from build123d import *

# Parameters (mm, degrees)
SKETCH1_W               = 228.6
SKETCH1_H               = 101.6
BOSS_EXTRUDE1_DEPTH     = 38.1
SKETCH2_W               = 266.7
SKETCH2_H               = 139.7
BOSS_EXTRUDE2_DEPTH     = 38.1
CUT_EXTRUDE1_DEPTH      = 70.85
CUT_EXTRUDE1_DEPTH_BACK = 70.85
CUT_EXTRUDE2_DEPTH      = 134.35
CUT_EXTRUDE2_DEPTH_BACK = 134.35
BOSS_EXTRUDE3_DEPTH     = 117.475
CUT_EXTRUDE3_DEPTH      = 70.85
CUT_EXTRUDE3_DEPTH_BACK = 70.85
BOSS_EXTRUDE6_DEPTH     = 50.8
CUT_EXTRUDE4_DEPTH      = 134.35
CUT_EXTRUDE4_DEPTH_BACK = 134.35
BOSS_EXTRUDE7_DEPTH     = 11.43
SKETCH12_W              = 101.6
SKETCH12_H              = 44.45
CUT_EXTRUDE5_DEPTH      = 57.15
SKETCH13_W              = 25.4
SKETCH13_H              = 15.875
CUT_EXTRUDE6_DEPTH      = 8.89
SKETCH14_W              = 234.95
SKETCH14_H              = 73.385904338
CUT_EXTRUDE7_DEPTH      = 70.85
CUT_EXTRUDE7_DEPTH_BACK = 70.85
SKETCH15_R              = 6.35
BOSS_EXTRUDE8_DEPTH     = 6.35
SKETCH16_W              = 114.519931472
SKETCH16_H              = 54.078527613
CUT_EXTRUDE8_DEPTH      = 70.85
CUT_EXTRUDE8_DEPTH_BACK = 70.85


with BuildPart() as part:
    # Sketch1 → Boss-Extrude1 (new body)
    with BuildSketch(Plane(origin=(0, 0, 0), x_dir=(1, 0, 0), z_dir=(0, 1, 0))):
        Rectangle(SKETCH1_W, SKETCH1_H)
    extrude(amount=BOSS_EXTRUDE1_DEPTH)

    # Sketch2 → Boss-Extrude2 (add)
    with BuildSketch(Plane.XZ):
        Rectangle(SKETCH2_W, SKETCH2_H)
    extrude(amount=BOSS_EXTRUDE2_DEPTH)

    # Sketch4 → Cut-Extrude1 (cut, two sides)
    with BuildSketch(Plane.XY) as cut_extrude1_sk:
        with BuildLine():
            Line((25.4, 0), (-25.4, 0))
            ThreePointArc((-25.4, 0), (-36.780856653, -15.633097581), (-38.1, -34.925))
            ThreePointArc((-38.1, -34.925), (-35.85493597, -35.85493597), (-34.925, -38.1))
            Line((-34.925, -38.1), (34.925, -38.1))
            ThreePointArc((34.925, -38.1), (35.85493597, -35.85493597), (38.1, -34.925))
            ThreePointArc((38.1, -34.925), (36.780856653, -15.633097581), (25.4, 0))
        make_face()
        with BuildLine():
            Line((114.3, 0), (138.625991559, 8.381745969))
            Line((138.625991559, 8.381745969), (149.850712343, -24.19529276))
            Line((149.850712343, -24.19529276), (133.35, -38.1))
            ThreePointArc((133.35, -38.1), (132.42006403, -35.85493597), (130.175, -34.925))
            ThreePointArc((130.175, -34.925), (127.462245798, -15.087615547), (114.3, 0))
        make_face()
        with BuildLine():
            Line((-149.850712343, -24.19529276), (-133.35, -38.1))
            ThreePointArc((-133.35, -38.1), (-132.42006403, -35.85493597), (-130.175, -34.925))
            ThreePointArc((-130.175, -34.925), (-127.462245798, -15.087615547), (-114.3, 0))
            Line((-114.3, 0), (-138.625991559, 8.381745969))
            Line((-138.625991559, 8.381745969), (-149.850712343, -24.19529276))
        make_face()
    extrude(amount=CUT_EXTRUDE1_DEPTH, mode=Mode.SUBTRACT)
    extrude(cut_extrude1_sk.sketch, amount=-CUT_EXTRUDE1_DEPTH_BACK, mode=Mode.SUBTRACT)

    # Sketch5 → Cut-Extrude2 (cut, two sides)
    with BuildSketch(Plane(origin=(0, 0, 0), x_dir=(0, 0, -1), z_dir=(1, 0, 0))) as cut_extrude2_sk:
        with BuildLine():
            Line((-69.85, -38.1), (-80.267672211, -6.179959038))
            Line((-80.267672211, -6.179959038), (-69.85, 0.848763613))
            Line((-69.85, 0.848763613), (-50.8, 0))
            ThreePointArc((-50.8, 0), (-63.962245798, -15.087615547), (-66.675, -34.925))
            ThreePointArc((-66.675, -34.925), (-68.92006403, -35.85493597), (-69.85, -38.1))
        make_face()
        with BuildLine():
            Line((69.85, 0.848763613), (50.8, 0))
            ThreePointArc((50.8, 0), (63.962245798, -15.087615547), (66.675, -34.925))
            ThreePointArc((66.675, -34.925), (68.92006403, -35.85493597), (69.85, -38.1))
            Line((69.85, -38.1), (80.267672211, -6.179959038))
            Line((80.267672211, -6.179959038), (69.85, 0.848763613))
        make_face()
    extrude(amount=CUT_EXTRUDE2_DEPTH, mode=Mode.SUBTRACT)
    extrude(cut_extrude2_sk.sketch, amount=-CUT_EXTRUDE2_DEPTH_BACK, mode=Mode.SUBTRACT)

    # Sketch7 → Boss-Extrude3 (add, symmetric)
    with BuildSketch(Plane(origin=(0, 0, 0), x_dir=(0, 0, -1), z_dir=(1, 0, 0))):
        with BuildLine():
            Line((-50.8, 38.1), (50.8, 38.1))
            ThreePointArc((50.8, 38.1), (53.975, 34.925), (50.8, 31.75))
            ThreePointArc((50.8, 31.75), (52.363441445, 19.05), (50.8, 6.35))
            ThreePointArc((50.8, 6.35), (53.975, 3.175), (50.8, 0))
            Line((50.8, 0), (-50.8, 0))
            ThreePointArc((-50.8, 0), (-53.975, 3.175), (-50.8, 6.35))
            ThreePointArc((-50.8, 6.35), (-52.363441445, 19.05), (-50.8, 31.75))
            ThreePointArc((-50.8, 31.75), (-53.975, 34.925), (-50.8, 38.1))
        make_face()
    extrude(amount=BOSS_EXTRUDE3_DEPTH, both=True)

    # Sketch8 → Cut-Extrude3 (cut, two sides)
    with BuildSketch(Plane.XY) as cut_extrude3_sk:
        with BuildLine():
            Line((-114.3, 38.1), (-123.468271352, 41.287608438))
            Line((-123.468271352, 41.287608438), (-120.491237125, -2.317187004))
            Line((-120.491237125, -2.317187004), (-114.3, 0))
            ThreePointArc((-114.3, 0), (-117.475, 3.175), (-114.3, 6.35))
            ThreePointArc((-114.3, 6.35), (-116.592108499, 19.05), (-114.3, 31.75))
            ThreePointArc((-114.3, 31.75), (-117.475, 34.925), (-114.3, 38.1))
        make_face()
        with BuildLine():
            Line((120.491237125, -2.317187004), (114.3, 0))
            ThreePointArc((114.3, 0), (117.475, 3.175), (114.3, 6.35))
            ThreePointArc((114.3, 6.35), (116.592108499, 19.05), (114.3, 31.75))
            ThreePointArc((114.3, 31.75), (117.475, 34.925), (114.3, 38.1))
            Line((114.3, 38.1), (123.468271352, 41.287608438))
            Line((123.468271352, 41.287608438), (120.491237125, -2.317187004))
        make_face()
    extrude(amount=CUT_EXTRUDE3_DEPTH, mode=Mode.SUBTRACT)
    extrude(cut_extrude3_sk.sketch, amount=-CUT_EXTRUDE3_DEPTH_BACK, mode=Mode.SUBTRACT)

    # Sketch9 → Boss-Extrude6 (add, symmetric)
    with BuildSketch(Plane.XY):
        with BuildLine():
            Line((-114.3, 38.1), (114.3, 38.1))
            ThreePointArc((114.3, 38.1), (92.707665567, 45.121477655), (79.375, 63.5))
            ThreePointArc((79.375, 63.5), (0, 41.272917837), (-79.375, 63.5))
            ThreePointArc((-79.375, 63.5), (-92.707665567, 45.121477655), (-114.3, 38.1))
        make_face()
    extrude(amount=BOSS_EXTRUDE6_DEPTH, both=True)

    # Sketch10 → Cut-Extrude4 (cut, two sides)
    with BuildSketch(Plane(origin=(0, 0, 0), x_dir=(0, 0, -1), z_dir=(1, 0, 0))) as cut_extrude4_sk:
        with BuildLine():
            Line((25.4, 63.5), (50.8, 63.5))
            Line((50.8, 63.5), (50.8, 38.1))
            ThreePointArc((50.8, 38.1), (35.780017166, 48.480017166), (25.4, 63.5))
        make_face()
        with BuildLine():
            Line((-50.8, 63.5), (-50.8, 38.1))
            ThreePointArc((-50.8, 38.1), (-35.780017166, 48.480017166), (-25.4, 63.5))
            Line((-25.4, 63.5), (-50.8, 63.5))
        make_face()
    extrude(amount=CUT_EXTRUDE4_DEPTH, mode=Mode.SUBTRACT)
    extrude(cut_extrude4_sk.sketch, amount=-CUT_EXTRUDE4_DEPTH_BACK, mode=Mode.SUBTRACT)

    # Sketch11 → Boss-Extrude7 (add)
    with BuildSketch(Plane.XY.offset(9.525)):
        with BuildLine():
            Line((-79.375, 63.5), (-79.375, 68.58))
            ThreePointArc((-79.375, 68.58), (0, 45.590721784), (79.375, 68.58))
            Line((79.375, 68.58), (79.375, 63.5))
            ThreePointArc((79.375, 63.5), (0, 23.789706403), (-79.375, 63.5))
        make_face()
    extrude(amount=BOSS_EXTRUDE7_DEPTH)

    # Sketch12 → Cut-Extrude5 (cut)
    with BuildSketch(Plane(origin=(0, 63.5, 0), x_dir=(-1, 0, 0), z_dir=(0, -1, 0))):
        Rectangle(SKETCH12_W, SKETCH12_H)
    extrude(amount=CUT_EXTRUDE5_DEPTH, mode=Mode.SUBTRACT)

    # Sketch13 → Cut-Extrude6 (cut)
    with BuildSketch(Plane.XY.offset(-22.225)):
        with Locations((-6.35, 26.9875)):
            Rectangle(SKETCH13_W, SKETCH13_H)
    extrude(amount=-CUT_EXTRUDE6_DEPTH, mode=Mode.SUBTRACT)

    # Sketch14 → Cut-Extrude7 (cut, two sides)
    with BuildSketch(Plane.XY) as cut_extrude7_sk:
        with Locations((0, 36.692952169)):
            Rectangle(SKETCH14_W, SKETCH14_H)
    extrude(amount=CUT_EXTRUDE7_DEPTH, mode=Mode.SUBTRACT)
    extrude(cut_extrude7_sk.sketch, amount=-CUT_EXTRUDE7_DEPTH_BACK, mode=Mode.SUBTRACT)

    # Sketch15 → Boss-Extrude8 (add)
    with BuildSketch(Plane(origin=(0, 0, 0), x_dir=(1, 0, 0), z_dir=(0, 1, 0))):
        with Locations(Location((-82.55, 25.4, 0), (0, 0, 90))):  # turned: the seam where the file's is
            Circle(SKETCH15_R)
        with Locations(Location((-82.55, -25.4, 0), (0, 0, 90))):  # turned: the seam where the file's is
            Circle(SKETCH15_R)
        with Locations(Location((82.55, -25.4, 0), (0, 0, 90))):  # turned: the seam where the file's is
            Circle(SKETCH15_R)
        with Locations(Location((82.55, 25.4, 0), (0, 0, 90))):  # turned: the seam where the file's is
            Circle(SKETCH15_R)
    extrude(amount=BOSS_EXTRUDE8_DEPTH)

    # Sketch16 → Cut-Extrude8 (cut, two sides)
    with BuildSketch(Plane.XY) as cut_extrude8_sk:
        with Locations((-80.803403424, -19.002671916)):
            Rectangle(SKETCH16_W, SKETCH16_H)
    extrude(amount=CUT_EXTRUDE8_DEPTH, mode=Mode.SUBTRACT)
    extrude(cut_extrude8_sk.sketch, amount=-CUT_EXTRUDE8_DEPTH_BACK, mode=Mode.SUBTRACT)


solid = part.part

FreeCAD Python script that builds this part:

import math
import FreeCAD as App
import Part
import Sketcher

V = App.Vector
Q = App.Units.Quantity


def add_polygon(sketch, points):
    """Adds a closed chain of lines whose ends are joined by coincident constraints."""
    first, n = sketch.GeometryCount, len(points)
    for a, b in zip(points, points[1:] + points[:1]):
        sketch.addGeometry(Part.LineSegment(App.Vector(*a, 0), App.Vector(*b, 0)), False)
    for i in range(n):
        sketch.addConstraint(Sketcher.Constraint("Coincident", first + i, 2, first + (i + 1) % n, 1))

doc = App.newDocument("Part")
body = doc.addObject("PartDesign::Body", "Body")
body.AllowCompound = True

sketch1 = doc.addObject("Sketcher::SketchObject", "Sketch")
body.addObject(sketch1)
sketch1.AttachmentSupport = (doc.XZ_Plane, [""])
sketch1.MapMode = "FlatFace"
add_polygon(sketch1, [(-114.3, -50.8), (-114.3, 50.8), (114.3, 50.8), (114.3, -50.8)])
sketch1.addConstraint([
    Sketcher.Constraint("Vertical", 0),
    Sketcher.Constraint("Horizontal", 1),
    Sketcher.Constraint("Vertical", 2),
    Sketcher.Constraint("Horizontal", 3),
    Sketcher.Constraint("Symmetric", 0, 2, 2, 2, -1, 1),
    Sketcher.Constraint("DistanceX", 1, 1, 1, 2, Q("9 in")),
    Sketcher.Constraint("DistanceY", 0, 1, 0, 2, Q("4 in")),
])
pad1 = doc.addObject("PartDesign::Pad", "Pad")
body.addObject(pad1)
pad1.Profile = sketch1
pad1.Length = Q("1.5 in")
pad1.Reversed = True

sketch2 = doc.addObject("Sketcher::SketchObject", "Sketch001")
body.addObject(sketch2)
sketch2.AttachmentSupport = (doc.XZ_Plane, [""])
sketch2.MapMode = "FlatFace"
add_polygon(sketch2, [(-133.35, 69.85), (-133.35, -69.85), (133.35, -69.85), (133.35, 69.85)])
sketch2.addConstraint([
    Sketcher.Constraint("Vertical", 0),
    Sketcher.Constraint("Horizontal", 1),
    Sketcher.Constraint("Vertical", 2),
    Sketcher.Constraint("Horizontal", 3),
    Sketcher.Constraint("Symmetric", 0, 2, 2, 2, -1, 1),
    Sketcher.Constraint("DistanceX", 1, 1, 1, 2, Q("10.5 in")),
    Sketcher.Constraint("DistanceY", 0, 2, 0, 1, Q("5.5 in")),
])
pad2 = doc.addObject("PartDesign::Pad", "Pad001")
body.addObject(pad2)
pad2.Profile = sketch2
pad2.Length = Q("1.5 in")

sketch3 = doc.addObject("Sketcher::SketchObject", "Sketch002")
body.addObject(sketch3)
sketch3.AttachmentSupport = (doc.XY_Plane, [""])
sketch3.MapMode = "FlatFace"
sketch3.addGeometry([
    Part.LineSegment(V(25.4, 0, 0), V(-25.4, 0, 0)),
    Part.ArcOfCircle(Part.Circle(V(-3.958571, -27.568474, 0), V(0, 0, 1), 34.925), math.radians(127.874054), math.radians(192.159733)),
    Part.ArcOfCircle(Part.Circle(V(-38.1, -38.1, 0), V(0, 0, 1), 3.175), math.radians(0), math.radians(90)),
    Part.LineSegment(V(-34.925, -38.1, 0), V(34.925, -38.1, 0)),
    Part.ArcOfCircle(Part.Circle(V(38.1, -38.1, 0), V(0, 0, 1), 3.175), math.radians(90), math.radians(180)),
    Part.ArcOfCircle(Part.Circle(V(3.958571, -27.568474, 0), V(0, 0, 1), 34.925), math.radians(-12.159733), math.radians(52.125946)),
    Part.LineSegment(V(138.625992, 8.381746, 0), V(114.3, 0, 0)),
    Part.ArcOfCircle(Part.Circle(V(95.667697, -29.539683, 0), V(0, 0, 1), 34.925), math.radians(-8.870205), math.radians(57.758115)),
    Part.ArcOfCircle(Part.Circle(V(130.175, -38.1, 0), V(0, 0, 1), 3.175), math.radians(0), math.radians(90)),
    Part.LineSegment(V(133.35, -38.1, 0), V(149.850712, -24.195293, 0)),
    Part.LineSegment(V(149.850712, -24.195293, 0), V(138.625992, 8.381746, 0)),
    Part.LineSegment(V(-149.850712, -24.195293, 0), V(-133.35, -38.1, 0)),
    Part.ArcOfCircle(Part.Circle(V(-130.175, -38.1, 0), V(0, 0, 1), 3.175), math.radians(90), math.radians(180)),
    Part.ArcOfCircle(Part.Circle(V(-95.667697, -29.539683, 0), V(0, 0, 1), 34.925), math.radians(122.241885), math.radians(188.870205)),
    Part.LineSegment(V(-114.3, 0, 0), V(-138.625992, 8.381746, 0)),
    Part.LineSegment(V(-138.625992, 8.381746, 0), V(-149.850712, -24.195293, 0)),
], False)
sketch3.addConstraint([
    Sketcher.Constraint("Coincident", 0, 2, 1, 1),
    Sketcher.Constraint("Coincident", 1, 2, 2, 2),
    Sketcher.Constraint("Coincident", 2, 1, 3, 1),
    Sketcher.Constraint("Coincident", 3, 2, 4, 2),
    Sketcher.Constraint("Coincident", 4, 1, 5, 1),
    Sketcher.Constraint("Coincident", 5, 2, 0, 1),
    Sketcher.Constraint("Coincident", 6, 2, 7, 2),
    Sketcher.Constraint("Coincident", 7, 1, 8, 2),
    Sketcher.Constraint("Coincident", 8, 1, 9, 1),
    Sketcher.Constraint("Coincident", 9, 2, 10, 1),
    Sketcher.Constraint("Coincident", 10, 2, 6, 1),
    Sketcher.Constraint("Coincident", 11, 2, 12, 2),
    Sketcher.Constraint("Coincident", 12, 1, 13, 2),
    Sketcher.Constraint("Coincident", 13, 1, 14, 1),
    Sketcher.Constraint("Coincident", 14, 2, 15, 1),
    Sketcher.Constraint("Coincident", 15, 2, 11, 1),
    Sketcher.Constraint("Horizontal", 0),
    Sketcher.Constraint("Horizontal", 3),
    Sketcher.Constraint("Equal", 2, 4),
    Sketcher.Constraint("Equal", 1, 5),
    Sketcher.Constraint("Equal", 5, 7),
    Sketcher.Constraint("Equal", 4, 8),
    Sketcher.Constraint("Equal", 8, 12),
    Sketcher.Constraint("Equal", 7, 13),
    Sketcher.Constraint("Symmetric", 0, 2, 5, 2, -1, 1),
    Sketcher.Constraint("Symmetric", 6, 2, 13, 1, -1, 1),
    Sketcher.Constraint("Symmetric", 2, 3, 4, 3, -2),
    Sketcher.Constraint("Symmetric", 8, 3, 12, 3, -2),
    Sketcher.Constraint("Symmetric", 7, 3, 13, 3, -2),
    Sketcher.Constraint("Symmetric", 10, 2, 14, 2, -2),
    Sketcher.Constraint("Symmetric", 9, 2, 15, 2, -2),
    Sketcher.Constraint("Perpendicular", 6, 10),
    Sketcher.Constraint("Horizontal", 1, 3, 5, 3),
    Sketcher.Constraint("Horizontal", 4, 3, 8, 3),
    Sketcher.Constraint("Horizontal", 12, 3, 2, 1),
    Sketcher.Constraint("Horizontal", 3, 2, 8, 1),
    Sketcher.Constraint("Horizontal", 8, 1, 11, 2),
    Sketcher.Constraint("Vertical", 2, 3, 1, 2),
    Sketcher.Constraint("Vertical", 8, 3, 7, 1),
    Sketcher.Constraint("DistanceX", 0, 2, 0, 1, Q("2 in")),
    Sketcher.Constraint("Radius", 1, Q("1.375 in")),
    Sketcher.Constraint("Radius", 2, Q("0.125 in")),
    Sketcher.Constraint("DistanceX", 2, 3, 4, 3, Q("3 in")),
    Sketcher.Constraint("DistanceX", 4, 1, 6, 2, Q("3 in")),
    Sketcher.Constraint("DistanceY", 2, 3, -1, 1, Q("1.5 in")),
    Sketcher.Constraint("DistanceX", -1, 1, 8, 1, Q("5.25 in")),
    Sketcher.Constraint("Distance", 9, Q("21.5781 mm")),
    Sketcher.Constraint("DistanceX", -1, 1, 10, 2, Q("138.625992 mm")),
    Sketcher.Constraint("DistanceY", 7, 3, 9, 2, Q("5.344391 mm")),
])
pocket1 = doc.addObject("PartDesign::Pocket", "Pocket")
body.addObject(pocket1)
pocket1.Profile = sketch3
pocket1.Type = "ThroughAll"
pocket1.Midplane = True

sketch4 = doc.addObject("Sketcher::SketchObject", "Sketch003")
body.addObject(sketch4)
sketch4.AttachmentSupport = (doc.YZ_Plane, [""])
sketch4.MapMode = "FlatFace"
sketch4.addGeometry([
    Part.LineSegment(V(-6.179959, 80.267672, 0), V(-38.1, 69.85, 0)),
    Part.ArcOfCircle(Part.Circle(V(-38.1, 66.675, 0), V(0, 0, 1), 3.175), math.radians(0), math.radians(90)),
    Part.ArcOfCircle(Part.Circle(V(-29.539683, 32.167697, 0), V(0, 0, 1), 34.925), math.radians(32.241885), math.radians(98.870205)),
    Part.LineSegment(V(0, 50.8, 0), V(0.848764, 69.85, 0)),
    Part.LineSegment(V(0.848764, 69.85, 0), V(-6.179959, 80.267672, 0)),
    Part.LineSegment(V(0.848764, -69.85, 0), V(0, -50.8, 0)),
    Part.ArcOfCircle(Part.Circle(V(-29.539683, -32.167697, 0), V(0, 0, 1), 34.925), math.radians(-98.870205), math.radians(-32.241885)),
    Part.ArcOfCircle(Part.Circle(V(-38.1, -66.675, 0), V(0, 0, 1), 3.175), math.radians(-90), math.radians(0)),
    Part.LineSegment(V(-38.1, -69.85, 0), V(-6.179959, -80.267672, 0)),
    Part.LineSegment(V(-6.179959, -80.267672, 0), V(0.848764, -69.85, 0)),
], False)
sketch4.addConstraint([
    Sketcher.Constraint("Coincident", 0, 2, 1, 2),
    Sketcher.Constraint("Coincident", 1, 1, 2, 2),
    Sketcher.Constraint("Coincident", 2, 1, 3, 1),
    Sketcher.Constraint("Coincident", 3, 2, 4, 1),
    Sketcher.Constraint("Coincident", 4, 2, 0, 1),
    Sketcher.Constraint("Coincident", 5, 2, 6, 2),
    Sketcher.Constraint("Coincident", 6, 1, 7, 2),
    Sketcher.Constraint("Coincident", 7, 1, 8, 1),
    Sketcher.Constraint("Coincident", 8, 2, 9, 1),
    Sketcher.Constraint("Coincident", 9, 2, 5, 1),
    Sketcher.Constraint("Equal", 2, 6),
    Sketcher.Constraint("Equal", 1, 7),
    Sketcher.Constraint("Symmetric", 2, 1, 5, 2, -1, 1),
    Sketcher.Constraint("Symmetric", 2, 3, 6, 3, -1),
    Sketcher.Constraint("Symmetric", 1, 3, 7, 3, -1),
    Sketcher.Constraint("Symmetric", 4, 2, 8, 2, -1),
    Sketcher.Constraint("Symmetric", 3, 2, 9, 2, -1),
    Sketcher.Constraint("Horizontal", 0, 2, 3, 2),
    Sketcher.Constraint("Horizontal", 7, 3, 6, 1),
    Sketcher.Constraint("Vertical", 7, 3, 0, 2),
    Sketcher.Constraint("Vertical", 0, 2, 7, 1),
    Sketcher.Constraint("DistanceY", -1, 1, 2, 1, Q("2 in")),
    Sketcher.Constraint("Radius", 1, Q("0.125 in")),
    Sketcher.Constraint("Radius", 2, Q("1.375 in")),
    Sketcher.Constraint("DistanceX", 1, 3, -1, 1, Q("1.5 in")),
    Sketcher.Constraint("DistanceY", -1, 1, 0, 2, Q("2.75 in")),
    Sketcher.Constraint("DistanceY", 8, 2, 6, 3, Q("1.8936998 in")),
    Sketcher.Constraint("Distance", 3, Q("19.068899 mm")),
    Sketcher.Constraint("Distance", 0, Q("33.577029 mm")),
])
pocket2 = doc.addObject("PartDesign::Pocket", "Pocket001")
body.addObject(pocket2)
pocket2.Profile = sketch4
pocket2.Type = "ThroughAll"
pocket2.Midplane = True

sketch5 = doc.addObject("Sketcher::SketchObject", "Sketch004")
body.addObject(sketch5)
sketch5.AttachmentSupport = (doc.YZ_Plane, [""])
sketch5.MapMode = "FlatFace"
sketch5.addGeometry([
    Part.LineSegment(V(38.1, -50.8, 0), V(38.1, 50.8, 0)),
    Part.ArcOfCircle(Part.Circle(V(34.925, 50.8, 0), V(0, 0, 1), 3.175), math.radians(0), math.radians(180)),
    Part.ArcOfCircle(Part.Circle(V(19.05, 0, 0), V(0, 0, 1), 52.363441), math.radians(75.963757), math.radians(104.036243)),
    Part.ArcOfCircle(Part.Circle(V(3.175, 50.8, 0), V(0, 0, 1), 3.175), math.radians(0), math.radians(180)),
    Part.LineSegment(V(0, 50.8, 0), V(0, -50.8, 0)),
    Part.ArcOfCircle(Part.Circle(V(3.175, -50.8, 0), V(0, 0, 1), 3.175), math.radians(180), math.radians(360)),
    Part.ArcOfCircle(Part.Circle(V(19.05, 0, 0), V(0, 0, 1), 52.363441), math.radians(-104.036243), math.radians(-75.963757)),
    Part.ArcOfCircle(Part.Circle(V(34.925, -50.8, 0), V(0, 0, 1), 3.175), math.radians(180), math.radians(360)),
], False)
sketch5.addConstraint([
    Sketcher.Constraint("Tangent", 0, 2, 1, 1),
    Sketcher.Constraint("Coincident", 1, 2, 2, 1),
    Sketcher.Constraint("Coincident", 2, 2, 3, 1),
    Sketcher.Constraint("Tangent", 3, 2, 4, 1),
    Sketcher.Constraint("Tangent", 4, 2, 5, 1),
    Sketcher.Constraint("Coincident", 5, 2, 6, 1),
    Sketcher.Constraint("Coincident", 6, 2, 7, 1),
    Sketcher.Constraint("Tangent", 7, 2, 0, 1),
    Sketcher.Constraint("Vertical", 0),
    Sketcher.Constraint("Vertical", 4),
    Sketcher.Constraint("Coincident", 6, 3, 2, 3),
    Sketcher.Constraint("Equal", 1, 3),
    Sketcher.Constraint("Equal", 3, 5),
    Sketcher.Constraint("Equal", 2, 6),
    Sketcher.Constraint("Equal", 5, 7),
    Sketcher.Constraint("Symmetric", 3, 2, 4, 2, -1, 1),
    Sketcher.Constraint("PointOnObject", 2, 3, -1),
    Sketcher.Constraint("Horizontal", 1, 3, 3, 3),
    Sketcher.Constraint("Horizontal", 5, 3, 7, 3),
    Sketcher.Constraint("Horizontal", 0, 2, 1, 2),
    Sketcher.Constraint("Horizontal", 1, 2, 2, 2),
    Sketcher.Constraint("DistanceY", 0, 1, 0, 2, Q("4 in")),
    Sketcher.Constraint("Radius", 1, Q("0.125 in")),
    Sketcher.Constraint("DistanceX", 2, 2, 1, 2, Q("1 in")),
])
pad3 = doc.addObject("PartDesign::Pad", "Pad002")
body.addObject(pad3)
pad3.Profile = sketch5
pad3.Length = Q("9.25 in")
pad3.Midplane = True

sketch6 = doc.addObject("Sketcher::SketchObject", "Sketch005")
body.addObject(sketch6)
sketch6.AttachmentSupport = (doc.XY_Plane, [""])
sketch6.MapMode = "FlatFace"
sketch6.addGeometry([
    Part.LineSegment(V(-114.3, 38.1, 0), V(-123.468271, 41.287608, 0)),
    Part.LineSegment(V(-123.468271, 41.287608, 0), V(-120.491237, -2.317187, 0)),
    Part.LineSegment(V(-120.491237, -2.317187, 0), V(-114.3, 0, 0)),
    Part.ArcOfCircle(Part.Circle(V(-114.3, 3.175, 0), V(0, 0, 1), 3.175), math.radians(90), math.radians(270)),
    Part.ArcOfCircle(Part.Circle(V(-80.262292, 19.05, 0), V(0, 0, 1), 36.329816), math.radians(159.53867), math.radians(200.46133)),
    Part.ArcOfCircle(Part.Circle(V(-114.3, 34.925, 0), V(0, 0, 1), 3.175), math.radians(90), math.radians(270)),
    Part.LineSegment(V(114.3, 0, 0), V(120.491237, -2.317187, 0)),
    Part.LineSegment(V(120.491237, -2.317187, 0), V(123.468271, 41.287608, 0)),
    Part.LineSegment(V(123.468271, 41.287608, 0), V(114.3, 38.1, 0)),
    Part.ArcOfCircle(Part.Circle(V(114.3, 34.925, 0), V(0, 0, 1), 3.175), math.radians(-90), math.radians(90)),
    Part.ArcOfCircle(Part.Circle(V(80.262292, 19.05, 0), V(0, 0, 1), 36.329816), math.radians(-20.46133), math.radians(20.46133)),
    Part.ArcOfCircle(Part.Circle(V(114.3, 3.175, 0), V(0, 0, 1), 3.175), math.radians(-90), math.radians(90)),
], False)
sketch6.addConstraint([
    Sketcher.Constraint("Coincident", 0, 2, 1, 1),
    Sketcher.Constraint("Coincident", 1, 2, 2, 1),
    Sketcher.Constraint("Coincident", 2, 2, 3, 2),
    Sketcher.Constraint("Coincident", 3, 1, 4, 2),
    Sketcher.Constraint("Coincident", 4, 1, 5, 2),
    Sketcher.Constraint("Coincident", 5, 1, 0, 1),
    Sketcher.Constraint("Coincident", 6, 2, 7, 1),
    Sketcher.Constraint("Coincident", 7, 2, 8, 1),
    Sketcher.Constraint("Coincident", 8, 2, 9, 2),
    Sketcher.Constraint("Coincident", 9, 1, 10, 2),
    Sketcher.Constraint("Coincident", 10, 1, 11, 2),
    Sketcher.Constraint("Coincident", 11, 1, 6, 1),
    Sketcher.Constraint("Equal", 3, 5),
    Sketcher.Constraint("Equal", 5, 9),
    Sketcher.Constraint("Equal", 4, 10),
    Sketcher.Constraint("Equal", 9, 11),
    Sketcher.Constraint("Symmetric", 2, 2, 11, 1, -1, 1),
    Sketcher.Constraint("Symmetric", 5, 3, 9, 3, -2),
    Sketcher.Constraint("Symmetric", 4, 3, 10, 3, -2),
    Sketcher.Constraint("Symmetric", 3, 3, 11, 3, -2),
    Sketcher.Constraint("Symmetric", 1, 2, 6, 2, -2),
    Sketcher.Constraint("Symmetric", 0, 2, 7, 2, -2),
    Sketcher.Constraint("Vertical", 3, 3, 5, 3),
    Sketcher.Constraint("Vertical", 5, 3, 2, 2),
    Sketcher.Constraint("Vertical", 2, 2, 3, 1),
    Sketcher.Constraint("Vertical", 3, 1, 4, 1),
    Sketcher.Constraint("Vertical", 4, 1, 5, 1),
    Sketcher.Constraint("Vertical", 11, 3, 8, 2),
    Sketcher.Constraint("Radius", 3, Q("0.125 in")),
    Sketcher.Constraint("DistanceX", 5, 3, 9, 3, Q("9 in")),
    Sketcher.Constraint("DistanceY", 3, 1, 4, 1, Q("1 in")),
    Sketcher.Constraint("Radius", 4, Q("36.329816 mm")),
    Sketcher.Constraint("Distance", 0, Q("9.706598 mm")),
    Sketcher.Constraint("DistanceX", 0, 2, -1, 1, Q("123.468271 mm")),
    Sketcher.Constraint("DistanceX", 1, 2, 10, 3, Q("200.753529 mm")),
    Sketcher.Constraint("Distance", 1, Q("43.706303 mm")),
])
pocket3 = doc.addObject("PartDesign::Pocket", "Pocket002")
body.addObject(pocket3)
pocket3.Profile = sketch6
pocket3.Type = "ThroughAll"
pocket3.Midplane = True

sketch7 = doc.addObject("Sketcher::SketchObject", "Sketch006")
body.addObject(sketch7)
sketch7.AttachmentSupport = (doc.XY_Plane, [""])
sketch7.MapMode = "FlatFace"
sketch7.addGeometry([
    Part.LineSegment(V(-114.3, 38.1, 0), V(114.3, 38.1, 0)),
    Part.ArcOfCircle(Part.Circle(V(114.3, 74.810937, 0), V(0, 0, 1), 36.710937), math.radians(-162.054747), math.radians(-90)),
    Part.ArcOfCircle(Part.Circle(V(0, 194.114252, 0), V(0, 0, 1), 152.841335), math.radians(-121.28728), math.radians(-58.71272)),
    Part.ArcOfCircle(Part.Circle(V(-114.3, 74.810937, 0), V(0, 0, 1), 36.710937), math.radians(-90), math.radians(-17.945253)),
], False)
sketch7.addConstraint([
    Sketcher.Constraint("Tangent", 0, 2, 1, 2),
    Sketcher.Constraint("Coincident", 1, 1, 2, 2),
    Sketcher.Constraint("Coincident", 2, 1, 3, 2),
    Sketcher.Constraint("Tangent", 3, 1, 0, 1),
    Sketcher.Constraint("Horizontal", 0),
    Sketcher.Constraint("Equal", 1, 3),
    Sketcher.Constraint("Symmetric", 1, 1, 2, 1, -2),
    Sketcher.Constraint("DistanceX", 0, 1, 0, 2, Q("9 in")),
    Sketcher.Constraint("DistanceY", 0, 2, 1, 1, Q("1 in")),
    Sketcher.Constraint("DistanceY", -1, 1, 0, 2, Q("1.5 in")),
    Sketcher.Constraint("DistanceX", 2, 1, 1, 1, Q("6.25 in")),
    Sketcher.Constraint("Radius", 2, Q("152.841335 mm")),
])
pad4 = doc.addObject("PartDesign::Pad", "Pad003")
body.addObject(pad4)
pad4.Profile = sketch7
pad4.Length = Q("4 in")
pad4.Midplane = True

sketch8 = doc.addObject("Sketcher::SketchObject", "Sketch007")
body.addObject(sketch8)
sketch8.AttachmentSupport = (doc.YZ_Plane, [""])
sketch8.MapMode = "FlatFace"
sketch8.addGeometry([
    Part.LineSegment(V(63.5, -50.8, 0), V(63.5, -25.4, 0)),
    Part.ArcOfCircle(Part.Circle(V(84.401042, -71.701042, 0), V(0, 0, 1), 50.8), math.radians(114.295189), math.radians(155.704811)),
    Part.LineSegment(V(38.1, -50.8, 0), V(63.5, -50.8, 0)),
    Part.LineSegment(V(63.5, 50.8, 0), V(38.1, 50.8, 0)),
    Part.ArcOfCircle(Part.Circle(V(84.401042, 71.701042, 0), V(0, 0, 1), 50.8), math.radians(-155.704811), math.radians(-114.295189)),
    Part.LineSegment(V(63.5, 25.4, 0), V(63.5, 50.8, 0)),
], False)
sketch8.addConstraint([
    Sketcher.Constraint("Coincident", 0, 2, 1, 1),
    Sketcher.Constraint("Coincident", 1, 2, 2, 1),
    Sketcher.Constraint("Coincident", 2, 2, 0, 1),
    Sketcher.Constraint("Coincident", 3, 2, 4, 1),
    Sketcher.Constraint("Coincident", 4, 2, 5, 1),
    Sketcher.Constraint("Coincident", 5, 2, 3, 1),
    Sketcher.Constraint("Vertical", 0),
    Sketcher.Constraint("Horizontal", 2),
    Sketcher.Constraint("Horizontal", 3),
    Sketcher.Constraint("Vertical", 5),
    Sketcher.Constraint("Equal", 1, 4),
    Sketcher.Constraint("Symmetric", 1, 3, 4, 3, -1),
    Sketcher.Constraint("Symmetric", 2, 2, 5, 2, -1),
    Sketcher.Constraint("Equal", 3, 0),
    Sketcher.Constraint("Radius", 1, Q("2 in")),
    Sketcher.Constraint("DistanceX", 2, 1, 2, 2, Q("1 in")),
    Sketcher.Constraint("DistanceY", 0, 2, -1, 1, Q("1 in")),
    Sketcher.Constraint("DistanceX", -1, 1, 0, 2, Q("2.5 in")),
])
pocket4 = doc.addObject("PartDesign::Pocket", "Pocket003")
body.addObject(pocket4)
pocket4.Profile = sketch8
pocket4.Type = "ThroughAll"
pocket4.Midplane = True

sketch9 = doc.addObject("Sketcher::SketchObject", "Sketch008")
body.addObject(sketch9)
sketch9.AttachmentSupport = (doc.XY_Plane, [""])
sketch9.MapMode = "FlatFace"
sketch9.AttachmentOffset = App.Placement(V(0, 0, 0.375 * 25.4), App.Rotation())
sketch9.addGeometry([
    Part.LineSegment(V(-79.375, 68.58, 0), V(-79.375, 63.5, 0)),
    Part.ArcOfCircle(Part.Circle(V(0, 122.974292, 0), V(0, 0, 1), 99.184586), math.radians(-143.156425), math.radians(-36.843575)),
    Part.LineSegment(V(79.375, 63.5, 0), V(79.375, 68.58, 0)),
    Part.ArcOfCircle(Part.Circle(V(0, 194.114252, 0), V(0, 0, 1), 148.523531), math.radians(-122.305067), math.radians(-57.694933)),
], False)
sketch9.addConstraint([
    Sketcher.Constraint("Coincident", 0, 2, 1, 1),
    Sketcher.Constraint("Coincident", 1, 2, 2, 1),
    Sketcher.Constraint("Coincident", 2, 2, 3, 2),
    Sketcher.Constraint("Coincident", 3, 1, 0, 1),
    Sketcher.Constraint("Vertical", 0),
    Sketcher.Constraint("Vertical", 2),
    Sketcher.Constraint("Symmetric", 0, 2, 1, 2, -2),
    Sketcher.Constraint("PointOnObject", 3, 3, -2),
    Sketcher.Constraint("DistanceY", 0, 2, 0, 1, Q("0.2 in")),
    Sketcher.Constraint("DistanceY", -1, 1, 0, 2, Q("2.5 in")),
    Sketcher.Constraint("DistanceX", 0, 2, 1, 2, Q("6.25 in")),
    Sketcher.Constraint("Radius", 3, Q("148.523531 mm")),
    Sketcher.Constraint("Radius", 1, Q("99.184586 mm")),
])
pad5 = doc.addObject("PartDesign::Pad", "Pad004")
body.addObject(pad5)
pad5.Profile = sketch9
pad5.Length = Q("0.45 in")

sketch10 = doc.addObject("Sketcher::SketchObject", "Sketch009")
body.addObject(sketch10)
sketch10.AttachmentSupport = (doc.XZ_Plane, [""])
sketch10.MapMode = "FlatFace"
sketch10.AttachmentOffset = App.Placement(V(0, 0, -2.5 * 25.4), App.Rotation())
add_polygon(sketch10, [(50.8, -22.225), (50.8, 22.225), (-50.8, 22.225), (-50.8, -22.225)])
sketch10.addConstraint([
    Sketcher.Constraint("Vertical", 0),
    Sketcher.Constraint("Horizontal", 1),
    Sketcher.Constraint("Vertical", 2),
    Sketcher.Constraint("Horizontal", 3),
    Sketcher.Constraint("Symmetric", 0, 2, 2, 2, -1, 1),
    Sketcher.Constraint("DistanceX", 1, 2, 1, 1, Q("4 in")),
    Sketcher.Constraint("DistanceY", 0, 1, 0, 2, Q("1.75 in")),
])
pocket5 = doc.addObject("PartDesign::Pocket", "Pocket004")
body.addObject(pocket5)
pocket5.Profile = sketch10
pocket5.Length = Q("2.25 in")
pocket5.Reversed = True

sketch11 = doc.addObject("Sketcher::SketchObject", "Sketch010")
body.addObject(sketch11)
sketch11.AttachmentSupport = (doc.XY_Plane, [""])
sketch11.MapMode = "FlatFace"
sketch11.AttachmentOffset = App.Placement(V(0, 0, -0.875 * 25.4), App.Rotation())
add_polygon(sketch11, [(-19.05, 34.925), (-19.05, 19.05), (6.35, 19.05), (6.35, 34.925)])
sketch11.addConstraint([
    Sketcher.Constraint("Vertical", 0),
    Sketcher.Constraint("Horizontal", 1),
    Sketcher.Constraint("Vertical", 2),
    Sketcher.Constraint("Horizontal", 3),
    Sketcher.Constraint("DistanceX", 1, 1, 1, 2, Q("1 in")),
    Sketcher.Constraint("DistanceY", 0, 2, 0, 1, Q("0.625 in")),
    Sketcher.Constraint("DistanceX", 0, 2, -1, 1, Q("0.75 in")),
    Sketcher.Constraint("DistanceY", -1, 1, 0, 2, Q("0.75 in")),
])
pocket6 = doc.addObject("PartDesign::Pocket", "Pocket005")
body.addObject(pocket6)
pocket6.Profile = sketch11
pocket6.Length = Q("0.35 in")

sketch12 = doc.addObject("Sketcher::SketchObject", "Sketch011")
body.addObject(sketch12)
sketch12.AttachmentSupport = (doc.XY_Plane, [""])
sketch12.MapMode = "FlatFace"
add_polygon(sketch12, [(-117.475, 73.385904), (-117.475, 0), (117.475, 0), (117.475, 73.385904)])
sketch12.addConstraint([
    Sketcher.Constraint("Vertical", 0),
    Sketcher.Constraint("Horizontal", 1),
    Sketcher.Constraint("Vertical", 2),
    Sketcher.Constraint("Horizontal", 3),
    Sketcher.Constraint("Symmetric", 0, 2, 1, 2, -1, 1),
    Sketcher.Constraint("DistanceX", 1, 1, 1, 2, Q("9.25 in")),
    Sketcher.Constraint("DistanceY", 0, 2, 0, 1, Q("73.385904 mm")),
])
pocket7 = doc.addObject("PartDesign::Pocket", "Pocket006")
body.addObject(pocket7)
pocket7.Profile = sketch12
pocket7.Type = "ThroughAll"
pocket7.Midplane = True

sketch13 = doc.addObject("Sketcher::SketchObject", "Sketch012")
body.addObject(sketch13)
sketch13.AttachmentSupport = (doc.XZ_Plane, [""])
sketch13.MapMode = "FlatFace"
sketch13.addGeometry([
    Part.Circle(V(-82.55, -25.4, 0), V(0, 0, 1), 6.35),
    Part.Circle(V(-82.55, 25.4, 0), V(0, 0, 1), 6.35),
    Part.Circle(V(82.55, 25.4, 0), V(0, 0, 1), 6.35),
    Part.Circle(V(82.55, -25.4, 0), V(0, 0, 1), 6.35),
], False)
sketch13.addConstraint([
    Sketcher.Constraint("Equal", 0, 1),
    Sketcher.Constraint("Equal", 1, 2),
    Sketcher.Constraint("Equal", 2, 3),
    Sketcher.Constraint("Symmetric", 0, 3, 2, 3, -1, 1),
    Sketcher.Constraint("Symmetric", 1, 3, 3, 3, -1, 1),
    Sketcher.Constraint("Symmetric", 1, 3, 2, 3, -2),
    Sketcher.Constraint("Diameter", 0, Q("0.5 in")),
    Sketcher.Constraint("DistanceY", 0, 3, -1, 1, Q("1 in")),
    Sketcher.Constraint("DistanceX", 1, 3, 2, 3, Q("6.5 in")),
])
pad6 = doc.addObject("PartDesign::Pad", "Pad005")
body.addObject(pad6)
pad6.Profile = sketch13
pad6.Length = Q("0.25 in")
pad6.Reversed = True

sketch14 = doc.addObject("Sketcher::SketchObject", "Sketch013")
body.addObject(sketch14)
sketch14.AttachmentSupport = (doc.XY_Plane, [""])
sketch14.MapMode = "FlatFace"
add_polygon(sketch14, [(-138.063369, 8.036592), (-138.063369, -46.041936), (-23.543438, -46.041936), (-23.543438, 8.036592)])
sketch14.addConstraint([
    Sketcher.Constraint("Vertical", 0),
    Sketcher.Constraint("Horizontal", 1),
    Sketcher.Constraint("Vertical", 2),
    Sketcher.Constraint("Horizontal", 3),
    Sketcher.Constraint("DistanceX", 1, 1, 1, 2, Q("114.519931 mm")),
    Sketcher.Constraint("DistanceY", 0, 2, 0, 1, Q("54.078528 mm")),
    Sketcher.Constraint("DistanceX", 0, 2, -1, 1, Q("138.063369 mm")),
    Sketcher.Constraint("DistanceY", -1, 1, 2, 2, Q("8.036592 mm")),
])
pocket8 = doc.addObject("PartDesign::Pocket", "Pocket007")
body.addObject(pocket8)
pocket8.Profile = sketch14
pocket8.Type = "ThroughAll"
pocket8.Midplane = True

doc.recompute()
